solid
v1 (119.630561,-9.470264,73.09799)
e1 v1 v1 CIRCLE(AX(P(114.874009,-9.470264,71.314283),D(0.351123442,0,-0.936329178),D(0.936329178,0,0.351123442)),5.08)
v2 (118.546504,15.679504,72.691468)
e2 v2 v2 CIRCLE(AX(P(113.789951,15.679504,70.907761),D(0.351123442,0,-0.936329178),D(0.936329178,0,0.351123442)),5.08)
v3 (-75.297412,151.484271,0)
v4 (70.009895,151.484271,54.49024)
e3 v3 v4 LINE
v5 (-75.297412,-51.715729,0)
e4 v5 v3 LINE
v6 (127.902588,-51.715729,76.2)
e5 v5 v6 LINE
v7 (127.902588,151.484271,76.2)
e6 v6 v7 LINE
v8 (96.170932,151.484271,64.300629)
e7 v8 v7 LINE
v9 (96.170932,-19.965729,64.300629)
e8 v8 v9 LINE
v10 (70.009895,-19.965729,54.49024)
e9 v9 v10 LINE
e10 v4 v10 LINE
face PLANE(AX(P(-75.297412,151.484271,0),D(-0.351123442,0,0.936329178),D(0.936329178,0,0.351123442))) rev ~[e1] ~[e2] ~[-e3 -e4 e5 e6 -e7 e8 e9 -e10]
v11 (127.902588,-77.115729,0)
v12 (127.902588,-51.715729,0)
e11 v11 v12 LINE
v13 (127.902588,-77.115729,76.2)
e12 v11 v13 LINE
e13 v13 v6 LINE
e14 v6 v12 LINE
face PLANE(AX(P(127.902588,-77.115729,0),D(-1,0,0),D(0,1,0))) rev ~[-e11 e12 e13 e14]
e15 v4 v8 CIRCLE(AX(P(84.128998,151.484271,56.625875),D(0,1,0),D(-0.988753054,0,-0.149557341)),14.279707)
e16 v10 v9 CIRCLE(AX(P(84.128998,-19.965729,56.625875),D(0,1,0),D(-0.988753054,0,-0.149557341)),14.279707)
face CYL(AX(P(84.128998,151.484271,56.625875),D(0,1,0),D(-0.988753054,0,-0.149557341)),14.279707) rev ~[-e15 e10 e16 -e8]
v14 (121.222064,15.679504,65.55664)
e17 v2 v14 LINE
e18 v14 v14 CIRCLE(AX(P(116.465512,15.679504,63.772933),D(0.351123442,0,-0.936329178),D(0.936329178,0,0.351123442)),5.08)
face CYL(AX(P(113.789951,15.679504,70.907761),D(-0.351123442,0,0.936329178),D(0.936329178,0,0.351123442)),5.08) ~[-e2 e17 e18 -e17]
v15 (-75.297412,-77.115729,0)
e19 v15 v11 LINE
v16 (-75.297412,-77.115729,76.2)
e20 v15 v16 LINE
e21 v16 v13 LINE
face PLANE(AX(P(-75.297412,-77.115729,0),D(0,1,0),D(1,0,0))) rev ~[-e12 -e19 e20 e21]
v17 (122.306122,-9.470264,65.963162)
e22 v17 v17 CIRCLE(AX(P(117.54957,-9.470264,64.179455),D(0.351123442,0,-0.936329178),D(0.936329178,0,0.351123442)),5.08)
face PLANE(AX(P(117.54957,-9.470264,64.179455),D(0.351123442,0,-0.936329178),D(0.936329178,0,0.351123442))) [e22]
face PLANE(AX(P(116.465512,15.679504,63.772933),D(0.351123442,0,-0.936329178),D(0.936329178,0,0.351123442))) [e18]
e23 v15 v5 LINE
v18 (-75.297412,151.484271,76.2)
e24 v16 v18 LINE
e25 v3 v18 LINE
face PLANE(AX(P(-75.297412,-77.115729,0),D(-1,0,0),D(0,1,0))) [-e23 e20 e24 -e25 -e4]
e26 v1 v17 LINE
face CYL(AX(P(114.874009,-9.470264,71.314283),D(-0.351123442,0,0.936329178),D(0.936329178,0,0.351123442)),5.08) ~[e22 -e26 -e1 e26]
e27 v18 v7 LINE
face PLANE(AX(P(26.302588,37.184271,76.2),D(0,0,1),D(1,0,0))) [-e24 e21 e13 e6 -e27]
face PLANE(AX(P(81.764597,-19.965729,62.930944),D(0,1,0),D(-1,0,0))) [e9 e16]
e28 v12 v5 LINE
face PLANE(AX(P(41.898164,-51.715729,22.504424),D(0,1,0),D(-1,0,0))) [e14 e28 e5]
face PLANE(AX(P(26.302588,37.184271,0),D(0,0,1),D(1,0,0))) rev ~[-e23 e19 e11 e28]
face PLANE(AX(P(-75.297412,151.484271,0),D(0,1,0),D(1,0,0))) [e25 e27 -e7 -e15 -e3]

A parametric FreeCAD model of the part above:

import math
import FreeCAD as App
import Part
import Sketcher
from FreeCAD import Vector
Q = App.Units.Quantity

doc = App.newDocument("Part")
body = doc.addObject("PartDesign::Body", "Body")

# Sketch on XY plane
sketch1 = body.newObject("Sketcher::SketchObject", "Sketch")
sketch1.AttachmentSupport = (doc.getObject("XY_Plane"), [""])
sketch1.MapMode = "FlatFace"
sketch1.addGeometry([
    Part.LineSegment(Vector(-75, 151, 0), Vector(-75, -77, 0)),
    Part.LineSegment(Vector(-75, -77, 0), Vector(128, -77, 0)),
    Part.LineSegment(Vector(128, -77, 0), Vector(128, 151, 0)),
    Part.LineSegment(Vector(128, 151, 0), Vector(-75, 151, 0)),
], False)
sketch1.addConstraint([
    Sketcher.Constraint("Coincident", 0, 2, 1, 1),
    Sketcher.Constraint("Coincident", 1, 2, 2, 1),
    Sketcher.Constraint("Coincident", 2, 2, 3, 1),
    Sketcher.Constraint("Coincident", 3, 2, 0, 1),
    Sketcher.Constraint("Vertical", 0),
    Sketcher.Constraint("Horizontal", 1),
    Sketcher.Constraint("Vertical", 2),
    Sketcher.Constraint("Horizontal", 3),
    Sketcher.Constraint("DistanceX", 1, 1, 1, 2, Q("8 in")),
    Sketcher.Constraint("DistanceY", 0, 2, 0, 1, Q("9 in")),
    Sketcher.Constraint("DistanceX", 0, 2, -1, 1, Q("75.297412 mm")),
    Sketcher.Constraint("DistanceY", 0, 2, -1, 1, Q("77.115729 mm")),
])
pad1 = body.newObject("PartDesign::Pad", "Pad")
pad1.Profile = sketch1
pad1.Length = Q("3 in")

# Sketch on XZ plane
sketch2 = body.newObject("Sketcher::SketchObject", "Sketch001")
sketch2.AttachmentSupport = (doc.getObject("XZ_Plane"), [""])
sketch2.MapMode = "FlatFace"
sketch2.AttachmentOffset = App.Placement(Vector(0, 0, -151.484271), App.Rotation())
sketch2.addGeometry([
    Part.LineSegment(Vector(128, 0, 0), Vector(-75, 0, 0)),
    Part.LineSegment(Vector(-75, 0, 0), Vector(128, 76, 0)),
    Part.LineSegment(Vector(128, 76, 0), Vector(128, 0, 0)),
], False)
sketch2.addConstraint([
    Sketcher.Constraint("Coincident", 0, 2, 1, 1),
    Sketcher.Constraint("Coincident", 1, 2, 2, 1),
    Sketcher.Constraint("Coincident", 2, 2, 0, 1),
    Sketcher.Constraint("Horizontal", 0),
    Sketcher.Constraint("Vertical", 2),
    Sketcher.Constraint("PointOnObject", 0, 2, -1),
    Sketcher.Constraint("DistanceX", 0, 2, 0, 1, Q("8 in")),
    Sketcher.Constraint("DistanceY", 2, 2, 2, 1, Q("3 in")),
    Sketcher.Constraint("DistanceX", 0, 2, -1, 1, Q("75.297412 mm")),
])
pocket1 = body.newObject("PartDesign::Pocket", "Pocket")
pocket1.Profile = sketch2
pocket1.Length = Q("8 in")
pocket1.Reversed = True

# Sketch on XZ plane
sketch3 = body.newObject("Sketcher::SketchObject", "Sketch002")
sketch3.AttachmentSupport = (doc.getObject("XZ_Plane"), [""])
sketch3.MapMode = "FlatFace"
sketch3.AttachmentOffset = App.Placement(Vector(0, 0, -151.484271), App.Rotation())
sketch3.addGeometry([
    Part.LineSegment(Vector(96, 64, 0), Vector(70, 54, 0)),
    Part.ArcOfCircle(Part.Circle(Vector(84, 57, 0), Vector(0, 0, 1), 14), math.radians(33), math.radians(189)),
], False)
sketch3.addConstraint([
    Sketcher.Constraint("Coincident", 0, 1, 1, 1),
    Sketcher.Constraint("Coincident", 1, 2, 0, 2),
    Sketcher.Constraint("Distance", 0, Q("1.1 in")),
    Sketcher.Constraint("Radius", 1, Q("14.279707 mm")),
    Sketcher.Constraint("DistanceX", -1, 1, 1, 3, Q("84.128998 mm")),
    Sketcher.Constraint("DistanceY", -1, 1, 0, 1, Q("64.300629 mm")),
    Sketcher.Constraint("DistanceY", -1, 1, 1, 2, Q("54.49024 mm")),
])
pocket2 = body.newObject("PartDesign::Pocket", "Pocket001")
pocket2.Profile = sketch3
pocket2.Length = Q("6.75 in")
pocket2.Reversed = True

# Sketch on an angled plane
sketch4 = body.newObject("Sketcher::SketchObject", "Sketch003")
sketch4.Placement = App.Placement(Vector(-9.283243, 0, 24.755314), App.Rotation(Vector(0.936329178, 0, 0.351123442), Vector(0, -1.000000001, 0), Vector(0.351123442, 0, -0.936329178), "ZXY"))
sketch4.addGeometry([
    Part.Circle(Vector(131, -16, 0), Vector(0, 0, 1), 5),
    Part.Circle(Vector(133, 9, 0), Vector(0, 0, 1), 5),
], False)
sketch4.addConstraint([
    Sketcher.Constraint("Equal", 0, 1),
    Sketcher.Constraint("Diameter", 0, Q("0.4 in")),
    Sketcher.Constraint("DistanceX", -1, 1, 0, 3, Q("131.442229 mm")),
    Sketcher.Constraint("DistanceY", 0, 3, 1, 3, Q("25.149768 mm")),
    Sketcher.Constraint("DistanceY", 0, 3, -1, 1, Q("15.679504 mm")),
    Sketcher.Constraint("DistanceX", -1, 1, 1, 3, Q("132.600003 mm")),
])
pad2 = body.newObject("PartDesign::Pad", "Pad001")
pad2.Profile = sketch4
pad2.Length = Q("0.3 in")

doc.recompute()
